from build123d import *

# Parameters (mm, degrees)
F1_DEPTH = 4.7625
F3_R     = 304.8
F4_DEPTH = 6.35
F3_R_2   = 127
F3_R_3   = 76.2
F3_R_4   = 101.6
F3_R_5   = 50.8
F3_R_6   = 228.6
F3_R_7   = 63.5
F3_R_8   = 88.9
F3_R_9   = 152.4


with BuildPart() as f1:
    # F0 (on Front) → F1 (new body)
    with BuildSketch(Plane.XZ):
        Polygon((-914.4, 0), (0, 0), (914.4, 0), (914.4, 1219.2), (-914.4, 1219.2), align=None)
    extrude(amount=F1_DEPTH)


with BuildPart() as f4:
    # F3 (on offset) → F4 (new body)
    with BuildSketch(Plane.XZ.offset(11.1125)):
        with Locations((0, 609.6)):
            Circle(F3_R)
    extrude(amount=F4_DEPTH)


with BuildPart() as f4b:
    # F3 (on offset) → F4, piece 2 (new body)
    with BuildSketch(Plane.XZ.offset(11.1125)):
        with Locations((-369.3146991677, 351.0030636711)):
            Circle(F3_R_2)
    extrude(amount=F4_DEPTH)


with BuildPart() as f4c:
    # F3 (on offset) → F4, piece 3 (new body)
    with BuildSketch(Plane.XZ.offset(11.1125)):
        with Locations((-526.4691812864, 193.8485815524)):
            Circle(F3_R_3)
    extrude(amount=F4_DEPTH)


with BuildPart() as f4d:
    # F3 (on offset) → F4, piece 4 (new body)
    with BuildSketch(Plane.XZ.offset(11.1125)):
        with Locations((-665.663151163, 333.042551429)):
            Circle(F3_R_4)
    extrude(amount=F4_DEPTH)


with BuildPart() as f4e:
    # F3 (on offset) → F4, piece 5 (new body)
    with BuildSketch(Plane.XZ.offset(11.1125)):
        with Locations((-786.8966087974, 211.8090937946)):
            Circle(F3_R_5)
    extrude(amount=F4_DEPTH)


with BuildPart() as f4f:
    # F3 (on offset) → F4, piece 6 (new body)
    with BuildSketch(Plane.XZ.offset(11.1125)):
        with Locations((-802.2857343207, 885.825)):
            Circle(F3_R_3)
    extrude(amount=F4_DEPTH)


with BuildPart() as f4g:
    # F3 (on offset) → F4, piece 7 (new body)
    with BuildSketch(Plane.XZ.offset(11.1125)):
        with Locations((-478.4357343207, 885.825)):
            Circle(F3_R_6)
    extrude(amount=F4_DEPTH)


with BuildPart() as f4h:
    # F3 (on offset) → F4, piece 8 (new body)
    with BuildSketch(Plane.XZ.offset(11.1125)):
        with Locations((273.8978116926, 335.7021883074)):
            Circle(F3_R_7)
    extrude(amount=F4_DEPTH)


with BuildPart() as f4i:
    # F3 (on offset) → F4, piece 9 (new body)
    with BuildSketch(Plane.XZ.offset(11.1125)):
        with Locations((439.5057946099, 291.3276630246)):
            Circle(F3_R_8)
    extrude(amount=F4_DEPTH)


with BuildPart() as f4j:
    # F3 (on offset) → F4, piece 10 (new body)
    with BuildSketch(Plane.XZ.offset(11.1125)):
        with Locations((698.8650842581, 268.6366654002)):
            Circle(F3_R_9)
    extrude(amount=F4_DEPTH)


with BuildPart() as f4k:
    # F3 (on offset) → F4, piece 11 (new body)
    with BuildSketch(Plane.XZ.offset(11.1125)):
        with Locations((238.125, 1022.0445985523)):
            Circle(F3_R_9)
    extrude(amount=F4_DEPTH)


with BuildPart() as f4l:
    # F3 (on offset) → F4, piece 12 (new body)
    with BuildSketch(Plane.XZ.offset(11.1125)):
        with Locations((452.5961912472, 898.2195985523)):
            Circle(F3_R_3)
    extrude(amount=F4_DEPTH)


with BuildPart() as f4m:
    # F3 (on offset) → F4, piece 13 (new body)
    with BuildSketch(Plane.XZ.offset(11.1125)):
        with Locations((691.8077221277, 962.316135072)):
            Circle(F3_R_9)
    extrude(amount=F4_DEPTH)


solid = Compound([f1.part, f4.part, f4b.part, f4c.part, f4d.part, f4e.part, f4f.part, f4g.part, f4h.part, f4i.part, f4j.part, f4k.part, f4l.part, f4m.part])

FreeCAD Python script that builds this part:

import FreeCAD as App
import Part
import Sketcher
Q = App.Units.Quantity

doc = App.newDocument("Part")
body = doc.addObject("PartDesign::Body", "Body")

# Sketch on XZ plane
sketch1 = doc.addObject("Sketcher::SketchObject", "Sketch")
body.addObject(sketch1)
sketch1.AttachmentSupport = (doc.XZ_Plane, [""])
sketch1.MapMode = "FlatFace"
sketch1.addGeometry([
    Part.LineSegment(App.Vector(-914.4, 0, 0), App.Vector(914.4, 0, 0)),
    Part.LineSegment(App.Vector(914.4, 0, 0), App.Vector(914.4, 1219.2, 0)),
    Part.LineSegment(App.Vector(914.4, 1219.2, 0), App.Vector(-914.4, 1219.2, 0)),
    Part.LineSegment(App.Vector(-914.4, 1219.2, 0), App.Vector(-914.4, 0, 0)),
], False)
sketch1.addConstraint([
    Sketcher.Constraint("Coincident", 0, 2, 1, 1),
    Sketcher.Constraint("Coincident", 1, 2, 2, 1),
    Sketcher.Constraint("Coincident", 2, 2, 3, 1),
    Sketcher.Constraint("Coincident", 3, 2, 0, 1),
    Sketcher.Constraint("Horizontal", 0),
    Sketcher.Constraint("Vertical", 1),
    Sketcher.Constraint("Horizontal", 2),
    Sketcher.Constraint("Vertical", 3),
    Sketcher.Constraint("Symmetric", 0, 2, 3, 2, -1, 1),
    Sketcher.Constraint("DistanceX", 0, 1, 0, 2, Q("72 in")),
    Sketcher.Constraint("DistanceY", 1, 1, 1, 2, Q("48 in")),
])
pad1 = doc.addObject("PartDesign::Pad", "Pad")
body.addObject(pad1)
pad1.Profile = sketch1
pad1.Length = Q("0.1875 in")
body2 = doc.addObject("PartDesign::Body", "Body001")

# Sketch on XZ plane
sketch2 = doc.addObject("Sketcher::SketchObject", "Sketch001")
body2.addObject(sketch2)
sketch2.AttachmentSupport = (doc.getObject("XZ_Plane001"), [""])
sketch2.MapMode = "FlatFace"
sketch2.AttachmentOffset = App.Placement(App.Vector(0, 0, 0.4375 * 25.4), App.Rotation())
sketch2.addGeometry(Part.Circle(App.Vector(0, 609.6, 0), App.Vector(0, 0, 1), 304.8), False)
sketch2.addConstraint([
    Sketcher.Constraint("PointOnObject", 0, 3, -2),
    Sketcher.Constraint("Diameter", 0, Q("24 in")),
    Sketcher.Constraint("DistanceY", -1, 1, 0, 3, Q("24 in")),
])
pad2 = doc.addObject("PartDesign::Pad", "Pad001")
body2.addObject(pad2)
pad2.Profile = sketch2
pad2.Length = Q("0.25 in")
body3 = doc.addObject("PartDesign::Body", "Body002")

# Sketch on XZ plane
sketch3 = doc.addObject("Sketcher::SketchObject", "Sketch002")
body3.addObject(sketch3)
sketch3.AttachmentSupport = (doc.getObject("XZ_Plane002"), [""])
sketch3.MapMode = "FlatFace"
sketch3.AttachmentOffset = App.Placement(App.Vector(0, 0, 0.4375 * 25.4), App.Rotation())
sketch3.addGeometry(Part.Circle(App.Vector(-369.314699, 351.003064, 0), App.Vector(0, 0, 1), 127), False)
sketch3.addConstraint([
    Sketcher.Constraint("Diameter", 0, Q("10 in")),
    Sketcher.Constraint("DistanceX", 0, 3, -1, 1, Q("369.314699 mm")),
    Sketcher.Constraint("DistanceY", -1, 1, 0, 3, Q("351.003064 mm")),
])
pad3 = doc.addObject("PartDesign::Pad", "Pad002")
body3.addObject(pad3)
pad3.Profile = sketch3
pad3.Length = Q("0.25 in")
body4 = doc.addObject("PartDesign::Body", "Body003")

# Sketch on XZ plane
sketch4 = doc.addObject("Sketcher::SketchObject", "Sketch003")
body4.addObject(sketch4)
sketch4.AttachmentSupport = (doc.getObject("XZ_Plane003"), [""])
sketch4.MapMode = "FlatFace"
sketch4.AttachmentOffset = App.Placement(App.Vector(0, 0, 0.4375 * 25.4), App.Rotation())
sketch4.addGeometry(Part.Circle(App.Vector(-526.469181, 193.848582, 0), App.Vector(0, 0, 1), 76.2), False)
sketch4.addConstraint([
    Sketcher.Constraint("Diameter", 0, Q("6 in")),
    Sketcher.Constraint("DistanceX", 0, 3, -1, 1, Q("526.469181 mm")),
    Sketcher.Constraint("DistanceY", -1, 1, 0, 3, Q("193.848582 mm")),
])
pad4 = doc.addObject("PartDesign::Pad", "Pad003")
body4.addObject(pad4)
pad4.Profile = sketch4
pad4.Length = Q("0.25 in")
body5 = doc.addObject("PartDesign::Body", "Body004")

# Sketch on XZ plane
sketch5 = doc.addObject("Sketcher::SketchObject", "Sketch004")
body5.addObject(sketch5)
sketch5.AttachmentSupport = (doc.getObject("XZ_Plane004"), [""])
sketch5.MapMode = "FlatFace"
sketch5.AttachmentOffset = App.Placement(App.Vector(0, 0, 0.4375 * 25.4), App.Rotation())
sketch5.addGeometry(Part.Circle(App.Vector(-665.663151, 333.042551, 0), App.Vector(0, 0, 1), 101.6), False)
sketch5.addConstraint([
    Sketcher.Constraint("Diameter", 0, Q("8 in")),
    Sketcher.Constraint("DistanceX", 0, 3, -1, 1, Q("665.663151 mm")),
    Sketcher.Constraint("DistanceY", -1, 1, 0, 3, Q("333.042551 mm")),
])
pad5 = doc.addObject("PartDesign::Pad", "Pad004")
body5.addObject(pad5)
pad5.Profile = sketch5
pad5.Length = Q("0.25 in")
body6 = doc.addObject("PartDesign::Body", "Body005")

# Sketch on XZ plane
sketch6 = doc.addObject("Sketcher::SketchObject", "Sketch005")
body6.addObject(sketch6)
sketch6.AttachmentSupport = (doc.getObject("XZ_Plane005"), [""])
sketch6.MapMode = "FlatFace"
sketch6.AttachmentOffset = App.Placement(App.Vector(0, 0, 0.4375 * 25.4), App.Rotation())
sketch6.addGeometry(Part.Circle(App.Vector(-786.896609, 211.809094, 0), App.Vector(0, 0, 1), 50.8), False)
sketch6.addConstraint([
    Sketcher.Constraint("Diameter", 0, Q("4 in")),
    Sketcher.Constraint("DistanceX", 0, 3, -1, 1, Q("786.896609 mm")),
    Sketcher.Constraint("DistanceY", -1, 1, 0, 3, Q("211.809094 mm")),
])
pad6 = doc.addObject("PartDesign::Pad", "Pad005")
body6.addObject(pad6)
pad6.Profile = sketch6
pad6.Length = Q("0.25 in")
body7 = doc.addObject("PartDesign::Body", "Body006")

# Sketch on XZ plane
sketch7 = doc.addObject("Sketcher::SketchObject", "Sketch006")
body7.addObject(sketch7)
sketch7.AttachmentSupport = (doc.getObject("XZ_Plane006"), [""])
sketch7.MapMode = "FlatFace"
sketch7.AttachmentOffset = App.Placement(App.Vector(0, 0, 0.4375 * 25.4), App.Rotation())
sketch7.addGeometry(Part.Circle(App.Vector(-802.285734, 885.825, 0), App.Vector(0, 0, 1), 76.2), False)
sketch7.addConstraint([
    Sketcher.Constraint("Diameter", 0, Q("6 in")),
    Sketcher.Constraint("DistanceY", -1, 1, 0, 3, Q("34.875 in")),
    Sketcher.Constraint("DistanceX", 0, 3, -1, 1, Q("802.285734 mm")),
])
pad7 = doc.addObject("PartDesign::Pad", "Pad006")
body7.addObject(pad7)
pad7.Profile = sketch7
pad7.Length = Q("0.25 in")
body8 = doc.addObject("PartDesign::Body", "Body007")

# Sketch on XZ plane
sketch8 = doc.addObject("Sketcher::SketchObject", "Sketch007")
body8.addObject(sketch8)
sketch8.AttachmentSupport = (doc.getObject("XZ_Plane007"), [""])
sketch8.MapMode = "FlatFace"
sketch8.AttachmentOffset = App.Placement(App.Vector(0, 0, 0.4375 * 25.4), App.Rotation())
sketch8.addGeometry(Part.Circle(App.Vector(-478.435734, 885.825, 0), App.Vector(0, 0, 1), 228.6), False)
sketch8.addConstraint([
    Sketcher.Constraint("Diameter", 0, Q("18 in")),
    Sketcher.Constraint("DistanceY", -1, 1, 0, 3, Q("34.875 in")),
    Sketcher.Constraint("DistanceX", 0, 3, -1, 1, Q("478.435734 mm")),
])
pad8 = doc.addObject("PartDesign::Pad", "Pad007")
body8.addObject(pad8)
pad8.Profile = sketch8
pad8.Length = Q("0.25 in")
body9 = doc.addObject("PartDesign::Body", "Body008")

# Sketch on XZ plane
sketch9 = doc.addObject("Sketcher::SketchObject", "Sketch008")
body9.addObject(sketch9)
sketch9.AttachmentSupport = (doc.getObject("XZ_Plane008"), [""])
sketch9.MapMode = "FlatFace"
sketch9.AttachmentOffset = App.Placement(App.Vector(0, 0, 0.4375 * 25.4), App.Rotation())
sketch9.addGeometry(Part.Circle(App.Vector(273.897812, 335.702188, 0), App.Vector(0, 0, 1), 63.5), False)
sketch9.addConstraint([
    Sketcher.Constraint("Diameter", 0, Q("5 in")),
    Sketcher.Constraint("DistanceX", -1, 1, 0, 3, Q("273.897812 mm")),
    Sketcher.Constraint("DistanceY", -1, 1, 0, 3, Q("335.702188 mm")),
])
pad9 = doc.addObject("PartDesign::Pad", "Pad008")
body9.addObject(pad9)
pad9.Profile = sketch9
pad9.Length = Q("0.25 in")
body10 = doc.addObject("PartDesign::Body", "Body009")

# Sketch on XZ plane
sketch10 = doc.addObject("Sketcher::SketchObject", "Sketch009")
body10.addObject(sketch10)
sketch10.AttachmentSupport = (doc.getObject("XZ_Plane009"), [""])
sketch10.MapMode = "FlatFace"
sketch10.AttachmentOffset = App.Placement(App.Vector(0, 0, 0.4375 * 25.4), App.Rotation())
sketch10.addGeometry(Part.Circle(App.Vector(439.505795, 291.327663, 0), App.Vector(0, 0, 1), 88.9), False)
sketch10.addConstraint([
    Sketcher.Constraint("Diameter", 0, Q("7 in")),
    Sketcher.Constraint("DistanceX", -1, 1, 0, 3, Q("439.505795 mm")),
    Sketcher.Constraint("DistanceY", -1, 1, 0, 3, Q("291.327663 mm")),
])
pad10 = doc.addObject("PartDesign::Pad", "Pad009")
body10.addObject(pad10)
pad10.Profile = sketch10
pad10.Length = Q("0.25 in")
body11 = doc.addObject("PartDesign::Body", "Body010")

# Sketch on XZ plane
sketch11 = doc.addObject("Sketcher::SketchObject", "Sketch010")
body11.addObject(sketch11)
sketch11.AttachmentSupport = (doc.getObject("XZ_Plane010"), [""])
sketch11.MapMode = "FlatFace"
sketch11.AttachmentOffset = App.Placement(App.Vector(0, 0, 0.4375 * 25.4), App.Rotation())
sketch11.addGeometry(Part.Circle(App.Vector(698.865084, 268.636665, 0), App.Vector(0, 0, 1), 152.4), False)
sketch11.addConstraint([
    Sketcher.Constraint("Diameter", 0, Q("12 in")),
    Sketcher.Constraint("DistanceX", -1, 1, 0, 3, Q("698.865084 mm")),
    Sketcher.Constraint("DistanceY", -1, 1, 0, 3, Q("268.636665 mm")),
])
pad11 = doc.addObject("PartDesign::Pad", "Pad010")
body11.addObject(pad11)
pad11.Profile = sketch11
pad11.Length = Q("0.25 in")
body12 = doc.addObject("PartDesign::Body", "Body011")

# Sketch on XZ plane
sketch12 = doc.addObject("Sketcher::SketchObject", "Sketch011")
body12.addObject(sketch12)
sketch12.AttachmentSupport = (doc.getObject("XZ_Plane011"), [""])
sketch12.MapMode = "FlatFace"
sketch12.AttachmentOffset = App.Placement(App.Vector(0, 0, 0.4375 * 25.4), App.Rotation())
sketch12.addGeometry(Part.Circle(App.Vector(238.125, 1022.044599, 0), App.Vector(0, 0, 1), 152.4), False)
sketch12.addConstraint([
    Sketcher.Constraint("Diameter", 0, Q("12 in")),
    Sketcher.Constraint("DistanceX", -1, 1, 0, 3, Q("9.375 in")),
    Sketcher.Constraint("DistanceY", -1, 1, 0, 3, Q("1022.044599 mm")),
])
pad12 = doc.addObject("PartDesign::Pad", "Pad011")
body12.addObject(pad12)
pad12.Profile = sketch12
pad12.Length = Q("0.25 in")
body13 = doc.addObject("PartDesign::Body", "Body012")

# Sketch on XZ plane
sketch13 = doc.addObject("Sketcher::SketchObject", "Sketch012")
body13.addObject(sketch13)
sketch13.AttachmentSupport = (doc.getObject("XZ_Plane012"), [""])
sketch13.MapMode = "FlatFace"
sketch13.AttachmentOffset = App.Placement(App.Vector(0, 0, 0.4375 * 25.4), App.Rotation())
sketch13.addGeometry(Part.Circle(App.Vector(452.596191, 898.219599, 0), App.Vector(0, 0, 1), 76.2), False)
sketch13.addConstraint([
    Sketcher.Constraint("Diameter", 0, Q("6 in")),
    Sketcher.Constraint("DistanceY", -1, 1, 0, 3, Q("898.219599 mm")),
    Sketcher.Constraint("DistanceX", -1, 1, 0, 3, Q("452.596191 mm")),
])
pad13 = doc.addObject("PartDesign::Pad", "Pad012")
body13.addObject(pad13)
pad13.Profile = sketch13
pad13.Length = Q("0.25 in")
body14 = doc.addObject("PartDesign::Body", "Body013")

# Sketch on XZ plane
sketch14 = doc.addObject("Sketcher::SketchObject", "Sketch013")
body14.addObject(sketch14)
sketch14.AttachmentSupport = (doc.getObject("XZ_Plane013"), [""])
sketch14.MapMode = "FlatFace"
sketch14.AttachmentOffset = App.Placement(App.Vector(0, 0, 0.4375 * 25.4), App.Rotation())
sketch14.addGeometry(Part.Circle(App.Vector(691.807722, 962.316135, 0), App.Vector(0, 0, 1), 152.4), False)
sketch14.addConstraint([
    Sketcher.Constraint("Diameter", 0, Q("12 in")),
    Sketcher.Constraint("DistanceX", -1, 1, 0, 3, Q("691.807722 mm")),
    Sketcher.Constraint("DistanceY", -1, 1, 0, 3, Q("962.316135 mm")),
])
pad14 = doc.addObject("PartDesign::Pad", "Pad013")
body14.addObject(pad14)
pad14.Profile = sketch14
pad14.Length = Q("0.25 in")

doc.recompute()
